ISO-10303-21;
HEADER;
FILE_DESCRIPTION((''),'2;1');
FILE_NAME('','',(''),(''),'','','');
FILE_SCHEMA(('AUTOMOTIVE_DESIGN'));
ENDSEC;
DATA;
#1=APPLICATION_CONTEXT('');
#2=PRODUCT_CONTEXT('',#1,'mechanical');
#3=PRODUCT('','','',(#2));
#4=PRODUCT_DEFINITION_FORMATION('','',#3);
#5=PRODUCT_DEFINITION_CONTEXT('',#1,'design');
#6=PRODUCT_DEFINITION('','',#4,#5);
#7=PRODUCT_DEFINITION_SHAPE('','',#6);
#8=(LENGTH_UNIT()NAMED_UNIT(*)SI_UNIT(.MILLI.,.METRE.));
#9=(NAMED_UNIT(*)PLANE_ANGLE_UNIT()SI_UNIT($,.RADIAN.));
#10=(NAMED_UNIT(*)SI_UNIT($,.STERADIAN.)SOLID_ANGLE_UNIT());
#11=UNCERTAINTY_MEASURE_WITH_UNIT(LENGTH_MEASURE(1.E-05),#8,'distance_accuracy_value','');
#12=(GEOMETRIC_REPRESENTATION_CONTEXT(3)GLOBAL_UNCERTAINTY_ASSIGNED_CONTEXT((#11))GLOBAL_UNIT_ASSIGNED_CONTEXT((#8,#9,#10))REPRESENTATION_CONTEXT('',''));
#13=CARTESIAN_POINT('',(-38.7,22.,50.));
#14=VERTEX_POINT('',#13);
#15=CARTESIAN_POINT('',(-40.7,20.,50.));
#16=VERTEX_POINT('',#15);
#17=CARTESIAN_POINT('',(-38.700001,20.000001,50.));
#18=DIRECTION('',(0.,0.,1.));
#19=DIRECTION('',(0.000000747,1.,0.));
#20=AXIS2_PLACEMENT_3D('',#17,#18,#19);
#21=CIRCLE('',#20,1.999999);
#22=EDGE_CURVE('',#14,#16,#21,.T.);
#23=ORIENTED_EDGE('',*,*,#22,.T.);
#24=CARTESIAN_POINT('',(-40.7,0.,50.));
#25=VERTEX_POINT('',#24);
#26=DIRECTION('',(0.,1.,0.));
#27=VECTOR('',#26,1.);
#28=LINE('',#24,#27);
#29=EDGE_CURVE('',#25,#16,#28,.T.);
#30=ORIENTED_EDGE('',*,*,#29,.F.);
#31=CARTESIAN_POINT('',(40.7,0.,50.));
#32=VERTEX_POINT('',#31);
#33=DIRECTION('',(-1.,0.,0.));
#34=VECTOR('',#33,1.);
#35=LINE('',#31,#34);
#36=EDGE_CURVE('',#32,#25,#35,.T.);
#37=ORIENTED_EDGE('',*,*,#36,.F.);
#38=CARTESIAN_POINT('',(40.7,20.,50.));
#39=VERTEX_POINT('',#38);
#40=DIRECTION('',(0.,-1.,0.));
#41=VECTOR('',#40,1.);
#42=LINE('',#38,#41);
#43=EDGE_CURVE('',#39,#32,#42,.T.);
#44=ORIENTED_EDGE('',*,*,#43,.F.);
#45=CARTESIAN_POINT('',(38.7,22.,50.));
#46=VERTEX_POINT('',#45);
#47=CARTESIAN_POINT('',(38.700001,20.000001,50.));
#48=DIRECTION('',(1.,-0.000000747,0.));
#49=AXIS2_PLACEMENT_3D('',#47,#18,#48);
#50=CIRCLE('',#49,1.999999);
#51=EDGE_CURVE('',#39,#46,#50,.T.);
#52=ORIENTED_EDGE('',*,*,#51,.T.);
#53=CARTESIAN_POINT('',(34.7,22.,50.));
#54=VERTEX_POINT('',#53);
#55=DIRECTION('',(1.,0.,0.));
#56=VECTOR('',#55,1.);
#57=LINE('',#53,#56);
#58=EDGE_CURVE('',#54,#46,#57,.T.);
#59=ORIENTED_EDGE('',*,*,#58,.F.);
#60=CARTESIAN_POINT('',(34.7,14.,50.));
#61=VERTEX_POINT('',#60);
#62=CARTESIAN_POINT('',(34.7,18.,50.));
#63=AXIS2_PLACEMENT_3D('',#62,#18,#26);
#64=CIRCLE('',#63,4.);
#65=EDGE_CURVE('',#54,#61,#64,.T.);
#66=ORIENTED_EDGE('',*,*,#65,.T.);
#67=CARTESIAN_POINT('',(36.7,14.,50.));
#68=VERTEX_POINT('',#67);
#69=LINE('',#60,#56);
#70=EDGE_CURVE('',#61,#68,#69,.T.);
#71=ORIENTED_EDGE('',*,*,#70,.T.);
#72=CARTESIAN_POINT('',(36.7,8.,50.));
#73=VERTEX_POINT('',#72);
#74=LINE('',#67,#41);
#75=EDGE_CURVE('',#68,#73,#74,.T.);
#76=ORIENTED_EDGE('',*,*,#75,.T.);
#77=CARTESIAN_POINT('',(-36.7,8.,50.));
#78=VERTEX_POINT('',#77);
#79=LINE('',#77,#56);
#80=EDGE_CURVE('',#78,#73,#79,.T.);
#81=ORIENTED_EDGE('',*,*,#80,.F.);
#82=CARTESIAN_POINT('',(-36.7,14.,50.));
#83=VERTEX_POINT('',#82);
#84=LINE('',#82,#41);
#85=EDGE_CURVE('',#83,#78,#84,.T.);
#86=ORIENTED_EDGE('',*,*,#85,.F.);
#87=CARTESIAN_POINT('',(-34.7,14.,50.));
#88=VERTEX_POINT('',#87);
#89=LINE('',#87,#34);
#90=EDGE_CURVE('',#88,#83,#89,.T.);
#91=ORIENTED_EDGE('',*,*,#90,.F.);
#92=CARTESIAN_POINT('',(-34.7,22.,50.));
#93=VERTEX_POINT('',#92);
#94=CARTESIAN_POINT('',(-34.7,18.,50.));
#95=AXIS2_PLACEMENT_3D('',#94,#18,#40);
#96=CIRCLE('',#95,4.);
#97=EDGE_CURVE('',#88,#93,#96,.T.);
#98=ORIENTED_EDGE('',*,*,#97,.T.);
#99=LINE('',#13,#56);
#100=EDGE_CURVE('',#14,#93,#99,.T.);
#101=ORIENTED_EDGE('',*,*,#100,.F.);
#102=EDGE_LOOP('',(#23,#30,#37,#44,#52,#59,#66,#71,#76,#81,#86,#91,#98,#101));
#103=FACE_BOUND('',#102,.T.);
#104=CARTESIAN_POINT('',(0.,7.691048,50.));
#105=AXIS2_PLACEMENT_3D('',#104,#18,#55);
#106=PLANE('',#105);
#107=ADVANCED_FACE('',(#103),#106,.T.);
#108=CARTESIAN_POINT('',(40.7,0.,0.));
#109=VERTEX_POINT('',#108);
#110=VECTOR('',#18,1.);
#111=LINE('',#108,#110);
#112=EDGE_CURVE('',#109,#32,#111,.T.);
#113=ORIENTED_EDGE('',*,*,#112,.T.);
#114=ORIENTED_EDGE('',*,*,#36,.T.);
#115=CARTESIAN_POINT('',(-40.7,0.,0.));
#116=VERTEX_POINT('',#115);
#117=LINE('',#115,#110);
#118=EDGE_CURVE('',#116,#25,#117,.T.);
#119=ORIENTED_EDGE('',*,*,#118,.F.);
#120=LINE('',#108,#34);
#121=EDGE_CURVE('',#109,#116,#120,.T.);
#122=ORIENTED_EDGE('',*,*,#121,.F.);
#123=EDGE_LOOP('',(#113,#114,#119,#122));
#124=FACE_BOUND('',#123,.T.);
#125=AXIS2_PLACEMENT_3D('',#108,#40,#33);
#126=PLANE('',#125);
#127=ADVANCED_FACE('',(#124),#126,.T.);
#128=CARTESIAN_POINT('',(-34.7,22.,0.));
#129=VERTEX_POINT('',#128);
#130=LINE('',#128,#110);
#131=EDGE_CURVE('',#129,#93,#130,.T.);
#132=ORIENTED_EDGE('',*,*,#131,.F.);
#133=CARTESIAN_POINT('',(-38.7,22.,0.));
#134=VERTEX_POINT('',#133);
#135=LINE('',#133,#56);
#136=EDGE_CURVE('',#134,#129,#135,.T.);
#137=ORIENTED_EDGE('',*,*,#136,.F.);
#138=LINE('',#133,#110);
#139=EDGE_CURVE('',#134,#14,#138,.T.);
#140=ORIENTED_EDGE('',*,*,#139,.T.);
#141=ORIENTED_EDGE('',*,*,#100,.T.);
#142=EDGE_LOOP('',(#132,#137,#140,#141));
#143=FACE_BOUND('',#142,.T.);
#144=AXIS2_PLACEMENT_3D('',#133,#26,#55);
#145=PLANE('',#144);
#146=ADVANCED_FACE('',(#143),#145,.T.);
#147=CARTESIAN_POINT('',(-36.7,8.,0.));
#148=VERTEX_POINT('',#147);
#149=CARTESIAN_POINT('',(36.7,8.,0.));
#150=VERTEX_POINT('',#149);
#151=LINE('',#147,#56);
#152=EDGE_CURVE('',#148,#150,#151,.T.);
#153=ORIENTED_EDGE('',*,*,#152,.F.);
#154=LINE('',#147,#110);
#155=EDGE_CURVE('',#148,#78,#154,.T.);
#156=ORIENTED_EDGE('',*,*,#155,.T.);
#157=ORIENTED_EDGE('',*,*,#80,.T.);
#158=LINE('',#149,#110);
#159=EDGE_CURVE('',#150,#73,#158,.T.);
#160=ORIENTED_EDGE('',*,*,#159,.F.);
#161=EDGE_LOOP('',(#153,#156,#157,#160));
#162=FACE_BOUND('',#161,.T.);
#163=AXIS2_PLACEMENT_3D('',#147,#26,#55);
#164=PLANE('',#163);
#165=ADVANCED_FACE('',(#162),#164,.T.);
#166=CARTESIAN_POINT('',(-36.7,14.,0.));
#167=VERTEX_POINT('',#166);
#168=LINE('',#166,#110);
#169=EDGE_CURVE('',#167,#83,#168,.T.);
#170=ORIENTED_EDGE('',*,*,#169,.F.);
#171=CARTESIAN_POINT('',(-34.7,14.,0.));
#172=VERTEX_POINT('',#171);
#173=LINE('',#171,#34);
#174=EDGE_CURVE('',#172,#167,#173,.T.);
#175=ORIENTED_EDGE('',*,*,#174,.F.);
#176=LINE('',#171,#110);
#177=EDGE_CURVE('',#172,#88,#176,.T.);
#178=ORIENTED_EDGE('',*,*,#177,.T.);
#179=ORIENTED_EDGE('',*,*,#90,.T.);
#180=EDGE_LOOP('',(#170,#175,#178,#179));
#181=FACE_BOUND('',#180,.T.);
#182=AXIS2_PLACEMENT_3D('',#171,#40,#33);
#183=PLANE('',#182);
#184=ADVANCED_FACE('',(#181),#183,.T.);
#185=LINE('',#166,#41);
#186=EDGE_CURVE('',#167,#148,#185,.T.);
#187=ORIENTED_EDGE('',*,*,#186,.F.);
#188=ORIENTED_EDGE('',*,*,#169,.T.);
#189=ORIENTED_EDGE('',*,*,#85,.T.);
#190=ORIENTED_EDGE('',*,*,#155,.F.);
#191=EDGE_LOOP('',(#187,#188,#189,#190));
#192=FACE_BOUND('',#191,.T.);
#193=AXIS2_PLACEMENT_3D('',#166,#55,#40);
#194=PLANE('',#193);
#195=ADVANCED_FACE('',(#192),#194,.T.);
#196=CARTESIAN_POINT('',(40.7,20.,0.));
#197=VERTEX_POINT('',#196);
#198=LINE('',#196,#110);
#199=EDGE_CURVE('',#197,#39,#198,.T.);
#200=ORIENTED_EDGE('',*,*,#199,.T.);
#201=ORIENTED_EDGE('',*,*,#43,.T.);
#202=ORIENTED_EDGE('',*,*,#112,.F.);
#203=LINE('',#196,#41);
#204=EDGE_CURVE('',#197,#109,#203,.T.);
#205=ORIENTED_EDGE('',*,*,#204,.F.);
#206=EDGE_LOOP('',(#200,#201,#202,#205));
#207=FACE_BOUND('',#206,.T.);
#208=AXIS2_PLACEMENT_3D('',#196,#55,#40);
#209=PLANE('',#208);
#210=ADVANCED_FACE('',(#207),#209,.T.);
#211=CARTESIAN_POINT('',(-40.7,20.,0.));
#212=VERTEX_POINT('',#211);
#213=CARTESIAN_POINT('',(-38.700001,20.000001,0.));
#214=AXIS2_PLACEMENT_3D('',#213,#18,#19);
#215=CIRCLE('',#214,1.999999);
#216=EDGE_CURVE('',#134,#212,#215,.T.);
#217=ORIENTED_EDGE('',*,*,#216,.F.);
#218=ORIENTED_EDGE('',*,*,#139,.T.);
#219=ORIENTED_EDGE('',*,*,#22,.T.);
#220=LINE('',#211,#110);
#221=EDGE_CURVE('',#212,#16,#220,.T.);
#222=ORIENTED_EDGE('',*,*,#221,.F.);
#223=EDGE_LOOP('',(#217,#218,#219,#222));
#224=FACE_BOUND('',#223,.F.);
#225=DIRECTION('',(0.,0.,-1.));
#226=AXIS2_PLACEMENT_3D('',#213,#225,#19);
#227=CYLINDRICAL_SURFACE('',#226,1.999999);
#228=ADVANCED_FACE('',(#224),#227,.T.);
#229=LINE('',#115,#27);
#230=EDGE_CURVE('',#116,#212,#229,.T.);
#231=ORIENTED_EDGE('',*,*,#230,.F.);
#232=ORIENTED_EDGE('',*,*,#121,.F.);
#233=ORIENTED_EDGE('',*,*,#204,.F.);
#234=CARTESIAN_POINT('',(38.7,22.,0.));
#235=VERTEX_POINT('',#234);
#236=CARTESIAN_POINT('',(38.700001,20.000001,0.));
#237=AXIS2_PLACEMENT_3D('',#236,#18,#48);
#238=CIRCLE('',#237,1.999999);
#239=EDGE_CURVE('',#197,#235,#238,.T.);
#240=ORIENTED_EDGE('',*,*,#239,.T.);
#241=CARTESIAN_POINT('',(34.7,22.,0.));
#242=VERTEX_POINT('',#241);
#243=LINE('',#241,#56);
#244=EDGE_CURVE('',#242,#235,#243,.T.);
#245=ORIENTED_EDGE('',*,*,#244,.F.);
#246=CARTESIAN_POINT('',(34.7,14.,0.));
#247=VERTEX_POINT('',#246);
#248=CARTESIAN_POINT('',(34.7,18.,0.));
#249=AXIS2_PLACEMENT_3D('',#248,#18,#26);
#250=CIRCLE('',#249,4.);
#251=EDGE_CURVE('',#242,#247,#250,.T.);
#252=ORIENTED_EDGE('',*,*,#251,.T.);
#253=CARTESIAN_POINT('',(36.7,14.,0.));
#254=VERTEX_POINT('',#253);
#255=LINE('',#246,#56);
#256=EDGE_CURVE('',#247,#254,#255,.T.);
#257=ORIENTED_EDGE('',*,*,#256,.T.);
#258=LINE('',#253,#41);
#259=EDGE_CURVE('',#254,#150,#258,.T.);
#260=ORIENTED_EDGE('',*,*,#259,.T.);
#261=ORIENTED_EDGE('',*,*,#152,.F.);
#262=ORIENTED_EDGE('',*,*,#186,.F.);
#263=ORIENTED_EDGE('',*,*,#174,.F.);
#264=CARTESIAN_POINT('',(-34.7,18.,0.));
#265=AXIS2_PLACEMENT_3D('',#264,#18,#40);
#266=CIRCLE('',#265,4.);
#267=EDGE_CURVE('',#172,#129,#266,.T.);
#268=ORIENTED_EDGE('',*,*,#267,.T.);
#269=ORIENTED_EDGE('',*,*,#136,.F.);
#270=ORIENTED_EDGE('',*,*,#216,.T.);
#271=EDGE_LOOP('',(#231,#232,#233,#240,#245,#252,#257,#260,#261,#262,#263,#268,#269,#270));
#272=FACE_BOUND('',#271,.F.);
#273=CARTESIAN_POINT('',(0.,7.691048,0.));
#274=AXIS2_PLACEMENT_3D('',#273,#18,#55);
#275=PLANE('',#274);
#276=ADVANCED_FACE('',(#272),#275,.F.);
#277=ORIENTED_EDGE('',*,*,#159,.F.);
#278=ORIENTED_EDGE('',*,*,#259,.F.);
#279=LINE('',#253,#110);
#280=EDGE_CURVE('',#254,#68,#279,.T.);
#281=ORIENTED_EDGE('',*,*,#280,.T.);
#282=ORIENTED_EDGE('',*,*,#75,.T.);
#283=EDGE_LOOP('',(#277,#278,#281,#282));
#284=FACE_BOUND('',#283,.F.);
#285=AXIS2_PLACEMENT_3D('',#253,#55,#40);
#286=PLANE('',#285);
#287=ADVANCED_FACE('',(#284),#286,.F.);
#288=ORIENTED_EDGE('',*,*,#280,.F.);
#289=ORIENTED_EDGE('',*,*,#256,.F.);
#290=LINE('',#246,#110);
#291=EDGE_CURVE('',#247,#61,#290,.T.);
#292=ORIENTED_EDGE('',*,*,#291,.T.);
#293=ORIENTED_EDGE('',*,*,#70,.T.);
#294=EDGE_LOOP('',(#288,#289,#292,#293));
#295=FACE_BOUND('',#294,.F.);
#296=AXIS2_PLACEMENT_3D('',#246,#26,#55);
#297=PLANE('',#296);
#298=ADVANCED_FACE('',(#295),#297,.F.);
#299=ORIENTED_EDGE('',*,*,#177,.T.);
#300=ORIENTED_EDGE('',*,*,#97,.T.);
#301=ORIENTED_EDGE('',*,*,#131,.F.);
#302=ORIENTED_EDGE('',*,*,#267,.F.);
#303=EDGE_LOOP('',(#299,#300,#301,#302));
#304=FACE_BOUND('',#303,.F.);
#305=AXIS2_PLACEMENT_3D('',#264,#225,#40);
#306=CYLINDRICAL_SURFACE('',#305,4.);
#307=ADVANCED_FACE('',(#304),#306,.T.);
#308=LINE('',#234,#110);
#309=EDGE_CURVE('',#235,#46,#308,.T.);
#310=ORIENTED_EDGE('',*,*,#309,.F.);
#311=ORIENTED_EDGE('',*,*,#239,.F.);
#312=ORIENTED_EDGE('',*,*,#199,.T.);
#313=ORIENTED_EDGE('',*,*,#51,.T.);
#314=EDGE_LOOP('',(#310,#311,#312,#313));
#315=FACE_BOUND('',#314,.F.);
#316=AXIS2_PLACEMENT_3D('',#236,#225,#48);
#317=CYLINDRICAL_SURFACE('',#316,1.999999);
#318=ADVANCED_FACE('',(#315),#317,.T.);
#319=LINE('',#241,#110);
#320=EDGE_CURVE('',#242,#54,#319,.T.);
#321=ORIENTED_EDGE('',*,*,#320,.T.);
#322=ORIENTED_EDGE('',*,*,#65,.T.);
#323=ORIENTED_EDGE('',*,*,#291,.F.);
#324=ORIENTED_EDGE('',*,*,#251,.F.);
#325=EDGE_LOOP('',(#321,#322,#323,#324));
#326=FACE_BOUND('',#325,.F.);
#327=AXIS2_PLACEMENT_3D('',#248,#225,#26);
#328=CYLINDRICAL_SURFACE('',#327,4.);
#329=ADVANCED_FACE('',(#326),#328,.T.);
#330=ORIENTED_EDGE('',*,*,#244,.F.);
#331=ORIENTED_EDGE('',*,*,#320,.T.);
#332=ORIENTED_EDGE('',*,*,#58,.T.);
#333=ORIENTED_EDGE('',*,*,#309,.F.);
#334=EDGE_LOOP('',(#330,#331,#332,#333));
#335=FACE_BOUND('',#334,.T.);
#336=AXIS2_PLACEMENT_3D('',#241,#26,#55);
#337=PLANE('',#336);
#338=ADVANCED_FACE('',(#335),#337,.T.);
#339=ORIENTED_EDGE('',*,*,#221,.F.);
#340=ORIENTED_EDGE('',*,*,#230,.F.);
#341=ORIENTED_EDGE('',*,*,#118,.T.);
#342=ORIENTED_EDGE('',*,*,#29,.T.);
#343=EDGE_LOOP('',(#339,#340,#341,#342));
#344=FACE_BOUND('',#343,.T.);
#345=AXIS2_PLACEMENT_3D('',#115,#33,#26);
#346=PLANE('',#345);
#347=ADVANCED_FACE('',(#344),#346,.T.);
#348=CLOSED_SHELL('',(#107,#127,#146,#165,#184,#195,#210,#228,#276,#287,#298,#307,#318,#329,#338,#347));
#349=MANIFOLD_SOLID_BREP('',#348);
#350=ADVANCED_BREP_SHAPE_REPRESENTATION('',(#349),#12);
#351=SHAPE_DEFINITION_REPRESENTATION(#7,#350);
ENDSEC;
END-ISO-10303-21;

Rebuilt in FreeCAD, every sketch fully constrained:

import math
import FreeCAD as App
import Part
import Sketcher
Q = App.Units.Quantity

doc = App.newDocument("Part")
body = doc.addObject("PartDesign::Body", "Body")

sketch1 = doc.addObject("Sketcher::SketchObject", "Sketch")
body.addObject(sketch1)
sketch1.AttachmentSupport = (doc.XY_Plane, [""])
sketch1.MapMode = "FlatFace"
sketch1.addGeometry(Part.ArcOfCircle(Part.Circle(App.Vector(-34.7, 18, 0), App.Vector(0, 0, 1), 4), math.radians(-90), math.radians(90)), False)
sketch1.addGeometry(Part.LineSegment(App.Vector(-34.7, 22, 0), App.Vector(-38.7, 22, 0)), False)
sketch1.addGeometry(Part.ArcOfCircle(Part.Circle(App.Vector(-38.7, 20, 0), App.Vector(0, 0, 1), 2), math.radians(90), math.radians(180)), False)
sketch1.addGeometry(Part.LineSegment(App.Vector(-40.7, 20, 0), App.Vector(-40.7, 0, 0)), False)
sketch1.addGeometry(Part.LineSegment(App.Vector(-40.7, 0, 0), App.Vector(40.7, 0, 0)), False)
sketch1.addGeometry(Part.LineSegment(App.Vector(40.7, 0, 0), App.Vector(40.7, 20, 0)), False)
sketch1.addGeometry(Part.ArcOfCircle(Part.Circle(App.Vector(38.7, 20, 0), App.Vector(0, 0, 1), 2), math.radians(0), math.radians(90)), False)
sketch1.addGeometry(Part.LineSegment(App.Vector(38.7, 22, 0), App.Vector(34.7, 22, 0)), False)
sketch1.addGeometry(Part.ArcOfCircle(Part.Circle(App.Vector(34.7, 18, 0), App.Vector(0, 0, 1), 4), math.radians(90), math.radians(270)), False)
sketch1.addGeometry(Part.LineSegment(App.Vector(34.7, 14, 0), App.Vector(36.7, 14, 0)), False)
sketch1.addGeometry(Part.LineSegment(App.Vector(36.7, 14, 0), App.Vector(36.7, 8, 0)), False)
sketch1.addGeometry(Part.LineSegment(App.Vector(36.7, 8, 0), App.Vector(-36.7, 8, 0)), False)
sketch1.addGeometry(Part.LineSegment(App.Vector(-36.7, 8, 0), App.Vector(-36.7, 14, 0)), False)
sketch1.addGeometry(Part.LineSegment(App.Vector(-36.7, 14, 0), App.Vector(-34.7, 14, 0)), False)
sketch1.addConstraint(Sketcher.Constraint("Tangent", 0, 2, 1, 1))
sketch1.addConstraint(Sketcher.Constraint("Tangent", 1, 2, 2, 1))
sketch1.addConstraint(Sketcher.Constraint("Tangent", 2, 2, 3, 1))
sketch1.addConstraint(Sketcher.Constraint("Coincident", 3, 2, 4, 1))
sketch1.addConstraint(Sketcher.Constraint("Coincident", 4, 2, 5, 1))
sketch1.addConstraint(Sketcher.Constraint("Tangent", 5, 2, 6, 1))
sketch1.addConstraint(Sketcher.Constraint("Tangent", 6, 2, 7, 1))
sketch1.addConstraint(Sketcher.Constraint("Tangent", 7, 2, 8, 1))
sketch1.addConstraint(Sketcher.Constraint("Tangent", 8, 2, 9, 1))
sketch1.addConstraint(Sketcher.Constraint("Coincident", 9, 2, 10, 1))
sketch1.addConstraint(Sketcher.Constraint("Coincident", 10, 2, 11, 1))
sketch1.addConstraint(Sketcher.Constraint("Coincident", 11, 2, 12, 1))
sketch1.addConstraint(Sketcher.Constraint("Coincident", 12, 2, 13, 1))
sketch1.addConstraint(Sketcher.Constraint("Tangent", 13, 2, 0, 1))
sketch1.addConstraint(Sketcher.Constraint("Horizontal", 1))
sketch1.addConstraint(Sketcher.Constraint("Vertical", 3))
sketch1.addConstraint(Sketcher.Constraint("Horizontal", 4))
sketch1.addConstraint(Sketcher.Constraint("Vertical", 5))
sketch1.addConstraint(Sketcher.Constraint("Horizontal", 7))
sketch1.addConstraint(Sketcher.Constraint("Horizontal", 9))
sketch1.addConstraint(Sketcher.Constraint("Vertical", 10))
sketch1.addConstraint(Sketcher.Constraint("Horizontal", 11))
sketch1.addConstraint(Sketcher.Constraint("Vertical", 12))
sketch1.addConstraint(Sketcher.Constraint("Horizontal", 13))
sketch1.addConstraint(Sketcher.Constraint("Equal", 2, 6))
sketch1.addConstraint(Sketcher.Constraint("Equal", 0, 8))
sketch1.addConstraint(Sketcher.Constraint("Symmetric", 3, 2, 4, 2, -1, 1))
sketch1.addConstraint(Sketcher.Constraint("Symmetric", 0, 3, 8, 3, -2))
sketch1.addConstraint(Sketcher.Constraint("Equal", 9, 13))
sketch1.addConstraint(Sketcher.Constraint("Radius", 0, Q("4 mm")))
sketch1.addConstraint(Sketcher.Constraint("Radius", 2, Q("1.999999 mm")))
sketch1.addConstraint(Sketcher.Constraint("DistanceX", 1, 2, 1, 1, Q("4 mm")))
sketch1.addConstraint(Sketcher.Constraint("DistanceX", 9, 1, 9, 2, Q("2 mm")))
sketch1.addConstraint(Sketcher.Constraint("DistanceY", 3, 2, 3, 1, Q("20 mm")))
sketch1.addConstraint(Sketcher.Constraint("DistanceY", 10, 2, 10, 1, Q("6 mm")))
sketch1.addConstraint(Sketcher.Constraint("DistanceX", 4, 1, 4, 2, Q("81.4 mm")))
pad1 = doc.addObject("PartDesign::Pad", "Pad")
body.addObject(pad1)
pad1.Profile = sketch1
pad1.Length = 50

doc.recompute()
